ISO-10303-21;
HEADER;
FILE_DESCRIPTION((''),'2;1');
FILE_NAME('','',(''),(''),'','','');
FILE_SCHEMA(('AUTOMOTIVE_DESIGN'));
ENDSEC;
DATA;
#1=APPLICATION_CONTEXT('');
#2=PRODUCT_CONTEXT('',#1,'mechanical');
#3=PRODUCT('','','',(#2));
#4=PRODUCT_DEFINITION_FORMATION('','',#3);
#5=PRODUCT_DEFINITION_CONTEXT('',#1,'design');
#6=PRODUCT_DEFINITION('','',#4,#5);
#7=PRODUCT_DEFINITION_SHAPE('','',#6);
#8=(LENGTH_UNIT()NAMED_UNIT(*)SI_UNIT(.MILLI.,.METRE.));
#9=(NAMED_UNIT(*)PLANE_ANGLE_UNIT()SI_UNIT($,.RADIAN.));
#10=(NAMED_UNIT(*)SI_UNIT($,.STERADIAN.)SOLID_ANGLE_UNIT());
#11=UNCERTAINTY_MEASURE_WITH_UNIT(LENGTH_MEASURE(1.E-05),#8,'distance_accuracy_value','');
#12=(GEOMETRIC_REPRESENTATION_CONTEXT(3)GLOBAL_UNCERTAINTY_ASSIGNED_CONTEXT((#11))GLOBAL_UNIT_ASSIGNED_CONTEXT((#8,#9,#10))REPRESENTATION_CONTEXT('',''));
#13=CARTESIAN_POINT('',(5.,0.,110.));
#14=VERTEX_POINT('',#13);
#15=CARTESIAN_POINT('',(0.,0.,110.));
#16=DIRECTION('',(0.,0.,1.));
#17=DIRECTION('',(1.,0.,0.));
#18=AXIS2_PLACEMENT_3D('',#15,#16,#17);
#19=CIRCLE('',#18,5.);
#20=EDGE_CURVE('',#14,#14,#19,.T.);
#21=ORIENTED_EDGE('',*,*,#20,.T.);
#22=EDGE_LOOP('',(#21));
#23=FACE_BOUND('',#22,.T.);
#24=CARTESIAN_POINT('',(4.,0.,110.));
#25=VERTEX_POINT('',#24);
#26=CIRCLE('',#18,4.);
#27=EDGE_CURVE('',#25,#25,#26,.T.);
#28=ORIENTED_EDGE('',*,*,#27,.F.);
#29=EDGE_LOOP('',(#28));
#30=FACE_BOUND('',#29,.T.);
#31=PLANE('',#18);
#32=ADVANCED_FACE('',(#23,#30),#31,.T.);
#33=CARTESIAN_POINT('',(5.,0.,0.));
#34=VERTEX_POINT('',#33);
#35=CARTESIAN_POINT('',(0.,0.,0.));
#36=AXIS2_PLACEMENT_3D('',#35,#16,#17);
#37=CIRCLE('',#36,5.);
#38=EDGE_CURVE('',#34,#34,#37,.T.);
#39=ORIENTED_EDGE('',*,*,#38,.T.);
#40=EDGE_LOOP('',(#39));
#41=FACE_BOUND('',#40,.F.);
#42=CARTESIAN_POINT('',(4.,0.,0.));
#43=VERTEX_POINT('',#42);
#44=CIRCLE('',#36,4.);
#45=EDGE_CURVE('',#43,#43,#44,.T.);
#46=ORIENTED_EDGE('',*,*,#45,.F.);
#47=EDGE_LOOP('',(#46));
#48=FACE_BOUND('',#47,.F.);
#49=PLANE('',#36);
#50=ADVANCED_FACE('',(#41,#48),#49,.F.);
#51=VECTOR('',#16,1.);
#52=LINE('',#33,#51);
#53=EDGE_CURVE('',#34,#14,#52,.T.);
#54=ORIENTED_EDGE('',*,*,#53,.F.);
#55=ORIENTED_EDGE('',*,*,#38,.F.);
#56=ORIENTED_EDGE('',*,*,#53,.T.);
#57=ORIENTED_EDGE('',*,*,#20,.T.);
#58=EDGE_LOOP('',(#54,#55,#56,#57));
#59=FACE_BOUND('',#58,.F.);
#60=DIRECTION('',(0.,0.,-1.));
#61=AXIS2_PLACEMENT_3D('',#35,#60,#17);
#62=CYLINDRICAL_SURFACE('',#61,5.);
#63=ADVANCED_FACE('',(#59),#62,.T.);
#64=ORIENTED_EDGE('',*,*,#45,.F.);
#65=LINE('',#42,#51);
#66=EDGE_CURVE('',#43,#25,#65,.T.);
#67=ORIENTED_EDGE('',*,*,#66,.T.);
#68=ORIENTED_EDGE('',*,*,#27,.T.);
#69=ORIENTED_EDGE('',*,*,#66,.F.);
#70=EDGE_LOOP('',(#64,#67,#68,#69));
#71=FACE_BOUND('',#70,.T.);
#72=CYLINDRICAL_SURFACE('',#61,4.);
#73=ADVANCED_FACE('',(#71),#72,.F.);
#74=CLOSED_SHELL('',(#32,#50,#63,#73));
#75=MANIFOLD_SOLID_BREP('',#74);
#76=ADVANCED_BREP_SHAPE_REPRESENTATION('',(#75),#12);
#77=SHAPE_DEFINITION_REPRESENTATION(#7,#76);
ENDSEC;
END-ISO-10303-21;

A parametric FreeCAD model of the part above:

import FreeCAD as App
import Part
import Sketcher

V = App.Vector
Q = App.Units.Quantity

doc = App.newDocument("Part")
body = doc.addObject("PartDesign::Body", "Body")

# Sketch on XY plane
sketch1 = body.newObject("Sketcher::SketchObject", "Sketch")
sketch1.AttachmentSupport = (doc.getObject("XY_Plane"), [""])
sketch1.MapMode = "FlatFace"
sketch1.addGeometry([
    Part.Circle(V(0, 0, 0), V(0, 0, 1), 5),
    Part.Circle(V(0, 0, 0), V(0, 0, 1), 4),
], False)
sketch1.addConstraint([
    Sketcher.Constraint("Coincident", 0, 3, -1, 1),
    Sketcher.Constraint("Coincident", 1, 3, -1, 1),
    Sketcher.Constraint("Diameter", 0, Q("10 mm")),
    Sketcher.Constraint("Diameter", 1, Q("8 mm")),
])
pad1 = body.newObject("PartDesign::Pad", "Pad")
pad1.Profile = sketch1
pad1.Length = 110

doc.recompute()
